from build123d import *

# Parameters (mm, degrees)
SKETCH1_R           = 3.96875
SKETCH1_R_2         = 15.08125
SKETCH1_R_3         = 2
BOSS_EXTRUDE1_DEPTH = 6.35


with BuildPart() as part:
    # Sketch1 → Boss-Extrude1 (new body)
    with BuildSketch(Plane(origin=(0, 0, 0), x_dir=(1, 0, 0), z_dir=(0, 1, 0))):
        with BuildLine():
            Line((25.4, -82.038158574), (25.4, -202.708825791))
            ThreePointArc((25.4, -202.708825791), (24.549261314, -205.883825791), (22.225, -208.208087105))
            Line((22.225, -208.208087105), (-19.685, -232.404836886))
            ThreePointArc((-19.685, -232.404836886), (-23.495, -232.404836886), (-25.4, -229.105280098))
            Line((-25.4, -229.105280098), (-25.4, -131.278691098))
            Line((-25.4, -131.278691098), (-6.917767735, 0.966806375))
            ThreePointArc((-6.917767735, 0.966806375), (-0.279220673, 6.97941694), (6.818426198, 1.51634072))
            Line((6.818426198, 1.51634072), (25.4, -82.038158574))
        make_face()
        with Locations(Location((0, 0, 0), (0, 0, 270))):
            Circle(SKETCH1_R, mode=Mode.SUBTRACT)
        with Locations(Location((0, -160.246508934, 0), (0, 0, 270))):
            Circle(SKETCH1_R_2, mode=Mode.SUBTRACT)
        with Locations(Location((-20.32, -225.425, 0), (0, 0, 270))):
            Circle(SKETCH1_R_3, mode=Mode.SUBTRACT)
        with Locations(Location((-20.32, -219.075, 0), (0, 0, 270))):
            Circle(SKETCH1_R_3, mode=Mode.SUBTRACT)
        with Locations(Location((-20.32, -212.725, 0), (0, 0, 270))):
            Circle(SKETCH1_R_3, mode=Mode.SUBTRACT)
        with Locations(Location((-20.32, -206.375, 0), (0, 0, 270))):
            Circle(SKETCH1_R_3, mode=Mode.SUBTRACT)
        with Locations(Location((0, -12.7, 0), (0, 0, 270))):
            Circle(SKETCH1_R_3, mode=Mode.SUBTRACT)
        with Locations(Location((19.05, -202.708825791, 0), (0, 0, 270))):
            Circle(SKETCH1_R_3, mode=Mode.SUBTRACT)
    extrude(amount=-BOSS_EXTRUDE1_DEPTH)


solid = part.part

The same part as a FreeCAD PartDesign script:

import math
import FreeCAD as App
import Part
import Sketcher
Q = App.Units.Quantity

doc = App.newDocument("Part")
body = doc.addObject("PartDesign::Body", "Body")

# Sketch on XZ plane
sketch1 = doc.addObject("Sketcher::SketchObject", "Sketch")
body.addObject(sketch1)
sketch1.AttachmentSupport = (doc.XZ_Plane, [""])
sketch1.MapMode = "FlatFace"
sketch1.addGeometry(Part.LineSegment(App.Vector(25.4, 202.7, 0), App.Vector(25.4, 82, 0)), False)
sketch1.addGeometry(Part.LineSegment(App.Vector(25.4, 82, 0), App.Vector(6.8, -1.5, 0)), False)
sketch1.addGeometry(Part.ArcOfCircle(Part.Circle(App.Vector(0, 0, 0), App.Vector(0, 0, 1), 7), math.radians(-172), math.radians(-13)), False)
sketch1.addGeometry(Part.LineSegment(App.Vector(-6.9, -1, 0), App.Vector(-25.4, 131.3, 0)), False)
sketch1.addGeometry(Part.LineSegment(App.Vector(-25.4, 131.3, 0), App.Vector(-25.4, 229.1, 0)), False)
sketch1.addGeometry(Part.ArcOfCircle(Part.Circle(App.Vector(-21.6, 229.1, 0), App.Vector(0, 0, 1), 3.8), math.radians(60), math.radians(180)), False)
sketch1.addGeometry(Part.LineSegment(App.Vector(-19.7, 232.4, 0), App.Vector(22.2, 208.2, 0)), False)
sketch1.addGeometry(Part.ArcOfCircle(Part.Circle(App.Vector(19.1, 202.7, 0), App.Vector(0, 0, 1), 6.3), math.radians(0), math.radians(60)), False)
sketch1.addGeometry(Part.Circle(App.Vector(19.1, 202.7, 0), App.Vector(0, 0, 1), 2), False)
sketch1.addGeometry(Part.Circle(App.Vector(0, 160.2, 0), App.Vector(0, 0, 1), 15.1), False)
sketch1.addGeometry(Part.Circle(App.Vector(-20.3, 225.4, 0), App.Vector(0, 0, 1), 2), False)
sketch1.addGeometry(Part.Circle(App.Vector(-20.3, 219.1, 0), App.Vector(0, 0, 1), 2), False)
sketch1.addGeometry(Part.Circle(App.Vector(-20.3, 212.7, 0), App.Vector(0, 0, 1), 2), False)
sketch1.addGeometry(Part.Circle(App.Vector(-20.3, 206.4, 0), App.Vector(0, 0, 1), 2), False)
sketch1.addGeometry(Part.Circle(App.Vector(0, 12.7, 0), App.Vector(0, 0, 1), 2), False)
sketch1.addGeometry(Part.Circle(App.Vector(0, 0, 0), App.Vector(0, 0, 1), 4), False)
sketch1.addConstraint(Sketcher.Constraint("Coincident", 0, 2, 1, 1))
sketch1.addConstraint(Sketcher.Constraint("Tangent", 1, 2, 2, 2))
sketch1.addConstraint(Sketcher.Constraint("Tangent", 2, 1, 3, 1))
sketch1.addConstraint(Sketcher.Constraint("Coincident", 3, 2, 4, 1))
sketch1.addConstraint(Sketcher.Constraint("Tangent", 4, 2, 5, 2))
sketch1.addConstraint(Sketcher.Constraint("Tangent", 5, 1, 6, 1))
sketch1.addConstraint(Sketcher.Constraint("Tangent", 6, 2, 7, 2))
sketch1.addConstraint(Sketcher.Constraint("Tangent", 7, 1, 0, 1))
sketch1.addConstraint(Sketcher.Constraint("Vertical", 0))
sketch1.addConstraint(Sketcher.Constraint("Vertical", 4))
sketch1.addConstraint(Sketcher.Constraint("Coincident", 2, 3, -1, 1))
sketch1.addConstraint(Sketcher.Constraint("Coincident", 15, 3, -1, 1))
sketch1.addConstraint(Sketcher.Constraint("Coincident", 8, 3, 7, 3))
sketch1.addConstraint(Sketcher.Constraint("Equal", 8, 10))
sketch1.addConstraint(Sketcher.Constraint("Equal", 10, 11))
sketch1.addConstraint(Sketcher.Constraint("Equal", 11, 12))
sketch1.addConstraint(Sketcher.Constraint("Equal", 12, 13))
sketch1.addConstraint(Sketcher.Constraint("Equal", 13, 14))
sketch1.addConstraint(Sketcher.Constraint("PointOnObject", 9, 3, -2))
sketch1.addConstraint(Sketcher.Constraint("PointOnObject", 14, 3, -2))
sketch1.addConstraint(Sketcher.Constraint("Vertical", 10, 3, 11, 3))
sketch1.addConstraint(Sketcher.Constraint("Vertical", 11, 3, 12, 3))
sketch1.addConstraint(Sketcher.Constraint("Vertical", 12, 3, 13, 3))
sketch1.addConstraint(Sketcher.Constraint("Radius", 5, Q("0.15 in")))
sketch1.addConstraint(Sketcher.Constraint("Radius", 7, Q("0.25 in")))
sketch1.addConstraint(Sketcher.Constraint("Diameter", 9, Q("1.1875 in")))
sketch1.addConstraint(Sketcher.Constraint("Diameter", 15, Q("0.3125 in")))
sketch1.addConstraint(Sketcher.Constraint("DistanceX", -1, 1, 0, 2, Q("1 in")))
sketch1.addConstraint(Sketcher.Constraint("DistanceX", 3, 2, -1, 1, Q("1 in")))
sketch1.addConstraint(Sketcher.Constraint("Angle", 6, Q("-30 deg")))
sketch1.addConstraint(Sketcher.Constraint("Radius", 2, Q("0.275 in")))
sketch1.addConstraint(Sketcher.Constraint("DistanceX", 10, 3, -1, 1, Q("0.8 in")))
sketch1.addConstraint(Sketcher.Constraint("DistanceY", -1, 1, 14, 3, Q("0.5 in")))
sketch1.addConstraint(Sketcher.Constraint("DistanceY", 12, 3, 10, 3, Q("0.5 in")))
sketch1.addConstraint(Sketcher.Constraint("DistanceY", 13, 3, 11, 3, Q("0.5 in")))
sketch1.addConstraint(Sketcher.Constraint("Diameter", 8, 4.0))
sketch1.addConstraint(Sketcher.Constraint("DistanceY", 11, 3, 10, 3, Q("0.25 in")))
sketch1.addConstraint(Sketcher.Constraint("DistanceY", -1, 1, 10, 3, Q("8.875 in")))
sketch1.addConstraint(Sketcher.Constraint("DistanceY", 4, 1, 4, 2, 97.826589))
sketch1.addConstraint(Sketcher.Constraint("DistanceY", 1, 2, 0, 2, 83.554499))
sketch1.addConstraint(Sketcher.Constraint("DistanceY", 0, 2, 0, 1, 120.670667))
sketch1.addConstraint(Sketcher.Constraint("DistanceY", -1, 1, 9, 3, 160.246509))
pad1 = doc.addObject("PartDesign::Pad", "Pad")
body.addObject(pad1)
pad1.Profile = sketch1
pad1.Length = Q("0.25 in")

doc.recompute()
